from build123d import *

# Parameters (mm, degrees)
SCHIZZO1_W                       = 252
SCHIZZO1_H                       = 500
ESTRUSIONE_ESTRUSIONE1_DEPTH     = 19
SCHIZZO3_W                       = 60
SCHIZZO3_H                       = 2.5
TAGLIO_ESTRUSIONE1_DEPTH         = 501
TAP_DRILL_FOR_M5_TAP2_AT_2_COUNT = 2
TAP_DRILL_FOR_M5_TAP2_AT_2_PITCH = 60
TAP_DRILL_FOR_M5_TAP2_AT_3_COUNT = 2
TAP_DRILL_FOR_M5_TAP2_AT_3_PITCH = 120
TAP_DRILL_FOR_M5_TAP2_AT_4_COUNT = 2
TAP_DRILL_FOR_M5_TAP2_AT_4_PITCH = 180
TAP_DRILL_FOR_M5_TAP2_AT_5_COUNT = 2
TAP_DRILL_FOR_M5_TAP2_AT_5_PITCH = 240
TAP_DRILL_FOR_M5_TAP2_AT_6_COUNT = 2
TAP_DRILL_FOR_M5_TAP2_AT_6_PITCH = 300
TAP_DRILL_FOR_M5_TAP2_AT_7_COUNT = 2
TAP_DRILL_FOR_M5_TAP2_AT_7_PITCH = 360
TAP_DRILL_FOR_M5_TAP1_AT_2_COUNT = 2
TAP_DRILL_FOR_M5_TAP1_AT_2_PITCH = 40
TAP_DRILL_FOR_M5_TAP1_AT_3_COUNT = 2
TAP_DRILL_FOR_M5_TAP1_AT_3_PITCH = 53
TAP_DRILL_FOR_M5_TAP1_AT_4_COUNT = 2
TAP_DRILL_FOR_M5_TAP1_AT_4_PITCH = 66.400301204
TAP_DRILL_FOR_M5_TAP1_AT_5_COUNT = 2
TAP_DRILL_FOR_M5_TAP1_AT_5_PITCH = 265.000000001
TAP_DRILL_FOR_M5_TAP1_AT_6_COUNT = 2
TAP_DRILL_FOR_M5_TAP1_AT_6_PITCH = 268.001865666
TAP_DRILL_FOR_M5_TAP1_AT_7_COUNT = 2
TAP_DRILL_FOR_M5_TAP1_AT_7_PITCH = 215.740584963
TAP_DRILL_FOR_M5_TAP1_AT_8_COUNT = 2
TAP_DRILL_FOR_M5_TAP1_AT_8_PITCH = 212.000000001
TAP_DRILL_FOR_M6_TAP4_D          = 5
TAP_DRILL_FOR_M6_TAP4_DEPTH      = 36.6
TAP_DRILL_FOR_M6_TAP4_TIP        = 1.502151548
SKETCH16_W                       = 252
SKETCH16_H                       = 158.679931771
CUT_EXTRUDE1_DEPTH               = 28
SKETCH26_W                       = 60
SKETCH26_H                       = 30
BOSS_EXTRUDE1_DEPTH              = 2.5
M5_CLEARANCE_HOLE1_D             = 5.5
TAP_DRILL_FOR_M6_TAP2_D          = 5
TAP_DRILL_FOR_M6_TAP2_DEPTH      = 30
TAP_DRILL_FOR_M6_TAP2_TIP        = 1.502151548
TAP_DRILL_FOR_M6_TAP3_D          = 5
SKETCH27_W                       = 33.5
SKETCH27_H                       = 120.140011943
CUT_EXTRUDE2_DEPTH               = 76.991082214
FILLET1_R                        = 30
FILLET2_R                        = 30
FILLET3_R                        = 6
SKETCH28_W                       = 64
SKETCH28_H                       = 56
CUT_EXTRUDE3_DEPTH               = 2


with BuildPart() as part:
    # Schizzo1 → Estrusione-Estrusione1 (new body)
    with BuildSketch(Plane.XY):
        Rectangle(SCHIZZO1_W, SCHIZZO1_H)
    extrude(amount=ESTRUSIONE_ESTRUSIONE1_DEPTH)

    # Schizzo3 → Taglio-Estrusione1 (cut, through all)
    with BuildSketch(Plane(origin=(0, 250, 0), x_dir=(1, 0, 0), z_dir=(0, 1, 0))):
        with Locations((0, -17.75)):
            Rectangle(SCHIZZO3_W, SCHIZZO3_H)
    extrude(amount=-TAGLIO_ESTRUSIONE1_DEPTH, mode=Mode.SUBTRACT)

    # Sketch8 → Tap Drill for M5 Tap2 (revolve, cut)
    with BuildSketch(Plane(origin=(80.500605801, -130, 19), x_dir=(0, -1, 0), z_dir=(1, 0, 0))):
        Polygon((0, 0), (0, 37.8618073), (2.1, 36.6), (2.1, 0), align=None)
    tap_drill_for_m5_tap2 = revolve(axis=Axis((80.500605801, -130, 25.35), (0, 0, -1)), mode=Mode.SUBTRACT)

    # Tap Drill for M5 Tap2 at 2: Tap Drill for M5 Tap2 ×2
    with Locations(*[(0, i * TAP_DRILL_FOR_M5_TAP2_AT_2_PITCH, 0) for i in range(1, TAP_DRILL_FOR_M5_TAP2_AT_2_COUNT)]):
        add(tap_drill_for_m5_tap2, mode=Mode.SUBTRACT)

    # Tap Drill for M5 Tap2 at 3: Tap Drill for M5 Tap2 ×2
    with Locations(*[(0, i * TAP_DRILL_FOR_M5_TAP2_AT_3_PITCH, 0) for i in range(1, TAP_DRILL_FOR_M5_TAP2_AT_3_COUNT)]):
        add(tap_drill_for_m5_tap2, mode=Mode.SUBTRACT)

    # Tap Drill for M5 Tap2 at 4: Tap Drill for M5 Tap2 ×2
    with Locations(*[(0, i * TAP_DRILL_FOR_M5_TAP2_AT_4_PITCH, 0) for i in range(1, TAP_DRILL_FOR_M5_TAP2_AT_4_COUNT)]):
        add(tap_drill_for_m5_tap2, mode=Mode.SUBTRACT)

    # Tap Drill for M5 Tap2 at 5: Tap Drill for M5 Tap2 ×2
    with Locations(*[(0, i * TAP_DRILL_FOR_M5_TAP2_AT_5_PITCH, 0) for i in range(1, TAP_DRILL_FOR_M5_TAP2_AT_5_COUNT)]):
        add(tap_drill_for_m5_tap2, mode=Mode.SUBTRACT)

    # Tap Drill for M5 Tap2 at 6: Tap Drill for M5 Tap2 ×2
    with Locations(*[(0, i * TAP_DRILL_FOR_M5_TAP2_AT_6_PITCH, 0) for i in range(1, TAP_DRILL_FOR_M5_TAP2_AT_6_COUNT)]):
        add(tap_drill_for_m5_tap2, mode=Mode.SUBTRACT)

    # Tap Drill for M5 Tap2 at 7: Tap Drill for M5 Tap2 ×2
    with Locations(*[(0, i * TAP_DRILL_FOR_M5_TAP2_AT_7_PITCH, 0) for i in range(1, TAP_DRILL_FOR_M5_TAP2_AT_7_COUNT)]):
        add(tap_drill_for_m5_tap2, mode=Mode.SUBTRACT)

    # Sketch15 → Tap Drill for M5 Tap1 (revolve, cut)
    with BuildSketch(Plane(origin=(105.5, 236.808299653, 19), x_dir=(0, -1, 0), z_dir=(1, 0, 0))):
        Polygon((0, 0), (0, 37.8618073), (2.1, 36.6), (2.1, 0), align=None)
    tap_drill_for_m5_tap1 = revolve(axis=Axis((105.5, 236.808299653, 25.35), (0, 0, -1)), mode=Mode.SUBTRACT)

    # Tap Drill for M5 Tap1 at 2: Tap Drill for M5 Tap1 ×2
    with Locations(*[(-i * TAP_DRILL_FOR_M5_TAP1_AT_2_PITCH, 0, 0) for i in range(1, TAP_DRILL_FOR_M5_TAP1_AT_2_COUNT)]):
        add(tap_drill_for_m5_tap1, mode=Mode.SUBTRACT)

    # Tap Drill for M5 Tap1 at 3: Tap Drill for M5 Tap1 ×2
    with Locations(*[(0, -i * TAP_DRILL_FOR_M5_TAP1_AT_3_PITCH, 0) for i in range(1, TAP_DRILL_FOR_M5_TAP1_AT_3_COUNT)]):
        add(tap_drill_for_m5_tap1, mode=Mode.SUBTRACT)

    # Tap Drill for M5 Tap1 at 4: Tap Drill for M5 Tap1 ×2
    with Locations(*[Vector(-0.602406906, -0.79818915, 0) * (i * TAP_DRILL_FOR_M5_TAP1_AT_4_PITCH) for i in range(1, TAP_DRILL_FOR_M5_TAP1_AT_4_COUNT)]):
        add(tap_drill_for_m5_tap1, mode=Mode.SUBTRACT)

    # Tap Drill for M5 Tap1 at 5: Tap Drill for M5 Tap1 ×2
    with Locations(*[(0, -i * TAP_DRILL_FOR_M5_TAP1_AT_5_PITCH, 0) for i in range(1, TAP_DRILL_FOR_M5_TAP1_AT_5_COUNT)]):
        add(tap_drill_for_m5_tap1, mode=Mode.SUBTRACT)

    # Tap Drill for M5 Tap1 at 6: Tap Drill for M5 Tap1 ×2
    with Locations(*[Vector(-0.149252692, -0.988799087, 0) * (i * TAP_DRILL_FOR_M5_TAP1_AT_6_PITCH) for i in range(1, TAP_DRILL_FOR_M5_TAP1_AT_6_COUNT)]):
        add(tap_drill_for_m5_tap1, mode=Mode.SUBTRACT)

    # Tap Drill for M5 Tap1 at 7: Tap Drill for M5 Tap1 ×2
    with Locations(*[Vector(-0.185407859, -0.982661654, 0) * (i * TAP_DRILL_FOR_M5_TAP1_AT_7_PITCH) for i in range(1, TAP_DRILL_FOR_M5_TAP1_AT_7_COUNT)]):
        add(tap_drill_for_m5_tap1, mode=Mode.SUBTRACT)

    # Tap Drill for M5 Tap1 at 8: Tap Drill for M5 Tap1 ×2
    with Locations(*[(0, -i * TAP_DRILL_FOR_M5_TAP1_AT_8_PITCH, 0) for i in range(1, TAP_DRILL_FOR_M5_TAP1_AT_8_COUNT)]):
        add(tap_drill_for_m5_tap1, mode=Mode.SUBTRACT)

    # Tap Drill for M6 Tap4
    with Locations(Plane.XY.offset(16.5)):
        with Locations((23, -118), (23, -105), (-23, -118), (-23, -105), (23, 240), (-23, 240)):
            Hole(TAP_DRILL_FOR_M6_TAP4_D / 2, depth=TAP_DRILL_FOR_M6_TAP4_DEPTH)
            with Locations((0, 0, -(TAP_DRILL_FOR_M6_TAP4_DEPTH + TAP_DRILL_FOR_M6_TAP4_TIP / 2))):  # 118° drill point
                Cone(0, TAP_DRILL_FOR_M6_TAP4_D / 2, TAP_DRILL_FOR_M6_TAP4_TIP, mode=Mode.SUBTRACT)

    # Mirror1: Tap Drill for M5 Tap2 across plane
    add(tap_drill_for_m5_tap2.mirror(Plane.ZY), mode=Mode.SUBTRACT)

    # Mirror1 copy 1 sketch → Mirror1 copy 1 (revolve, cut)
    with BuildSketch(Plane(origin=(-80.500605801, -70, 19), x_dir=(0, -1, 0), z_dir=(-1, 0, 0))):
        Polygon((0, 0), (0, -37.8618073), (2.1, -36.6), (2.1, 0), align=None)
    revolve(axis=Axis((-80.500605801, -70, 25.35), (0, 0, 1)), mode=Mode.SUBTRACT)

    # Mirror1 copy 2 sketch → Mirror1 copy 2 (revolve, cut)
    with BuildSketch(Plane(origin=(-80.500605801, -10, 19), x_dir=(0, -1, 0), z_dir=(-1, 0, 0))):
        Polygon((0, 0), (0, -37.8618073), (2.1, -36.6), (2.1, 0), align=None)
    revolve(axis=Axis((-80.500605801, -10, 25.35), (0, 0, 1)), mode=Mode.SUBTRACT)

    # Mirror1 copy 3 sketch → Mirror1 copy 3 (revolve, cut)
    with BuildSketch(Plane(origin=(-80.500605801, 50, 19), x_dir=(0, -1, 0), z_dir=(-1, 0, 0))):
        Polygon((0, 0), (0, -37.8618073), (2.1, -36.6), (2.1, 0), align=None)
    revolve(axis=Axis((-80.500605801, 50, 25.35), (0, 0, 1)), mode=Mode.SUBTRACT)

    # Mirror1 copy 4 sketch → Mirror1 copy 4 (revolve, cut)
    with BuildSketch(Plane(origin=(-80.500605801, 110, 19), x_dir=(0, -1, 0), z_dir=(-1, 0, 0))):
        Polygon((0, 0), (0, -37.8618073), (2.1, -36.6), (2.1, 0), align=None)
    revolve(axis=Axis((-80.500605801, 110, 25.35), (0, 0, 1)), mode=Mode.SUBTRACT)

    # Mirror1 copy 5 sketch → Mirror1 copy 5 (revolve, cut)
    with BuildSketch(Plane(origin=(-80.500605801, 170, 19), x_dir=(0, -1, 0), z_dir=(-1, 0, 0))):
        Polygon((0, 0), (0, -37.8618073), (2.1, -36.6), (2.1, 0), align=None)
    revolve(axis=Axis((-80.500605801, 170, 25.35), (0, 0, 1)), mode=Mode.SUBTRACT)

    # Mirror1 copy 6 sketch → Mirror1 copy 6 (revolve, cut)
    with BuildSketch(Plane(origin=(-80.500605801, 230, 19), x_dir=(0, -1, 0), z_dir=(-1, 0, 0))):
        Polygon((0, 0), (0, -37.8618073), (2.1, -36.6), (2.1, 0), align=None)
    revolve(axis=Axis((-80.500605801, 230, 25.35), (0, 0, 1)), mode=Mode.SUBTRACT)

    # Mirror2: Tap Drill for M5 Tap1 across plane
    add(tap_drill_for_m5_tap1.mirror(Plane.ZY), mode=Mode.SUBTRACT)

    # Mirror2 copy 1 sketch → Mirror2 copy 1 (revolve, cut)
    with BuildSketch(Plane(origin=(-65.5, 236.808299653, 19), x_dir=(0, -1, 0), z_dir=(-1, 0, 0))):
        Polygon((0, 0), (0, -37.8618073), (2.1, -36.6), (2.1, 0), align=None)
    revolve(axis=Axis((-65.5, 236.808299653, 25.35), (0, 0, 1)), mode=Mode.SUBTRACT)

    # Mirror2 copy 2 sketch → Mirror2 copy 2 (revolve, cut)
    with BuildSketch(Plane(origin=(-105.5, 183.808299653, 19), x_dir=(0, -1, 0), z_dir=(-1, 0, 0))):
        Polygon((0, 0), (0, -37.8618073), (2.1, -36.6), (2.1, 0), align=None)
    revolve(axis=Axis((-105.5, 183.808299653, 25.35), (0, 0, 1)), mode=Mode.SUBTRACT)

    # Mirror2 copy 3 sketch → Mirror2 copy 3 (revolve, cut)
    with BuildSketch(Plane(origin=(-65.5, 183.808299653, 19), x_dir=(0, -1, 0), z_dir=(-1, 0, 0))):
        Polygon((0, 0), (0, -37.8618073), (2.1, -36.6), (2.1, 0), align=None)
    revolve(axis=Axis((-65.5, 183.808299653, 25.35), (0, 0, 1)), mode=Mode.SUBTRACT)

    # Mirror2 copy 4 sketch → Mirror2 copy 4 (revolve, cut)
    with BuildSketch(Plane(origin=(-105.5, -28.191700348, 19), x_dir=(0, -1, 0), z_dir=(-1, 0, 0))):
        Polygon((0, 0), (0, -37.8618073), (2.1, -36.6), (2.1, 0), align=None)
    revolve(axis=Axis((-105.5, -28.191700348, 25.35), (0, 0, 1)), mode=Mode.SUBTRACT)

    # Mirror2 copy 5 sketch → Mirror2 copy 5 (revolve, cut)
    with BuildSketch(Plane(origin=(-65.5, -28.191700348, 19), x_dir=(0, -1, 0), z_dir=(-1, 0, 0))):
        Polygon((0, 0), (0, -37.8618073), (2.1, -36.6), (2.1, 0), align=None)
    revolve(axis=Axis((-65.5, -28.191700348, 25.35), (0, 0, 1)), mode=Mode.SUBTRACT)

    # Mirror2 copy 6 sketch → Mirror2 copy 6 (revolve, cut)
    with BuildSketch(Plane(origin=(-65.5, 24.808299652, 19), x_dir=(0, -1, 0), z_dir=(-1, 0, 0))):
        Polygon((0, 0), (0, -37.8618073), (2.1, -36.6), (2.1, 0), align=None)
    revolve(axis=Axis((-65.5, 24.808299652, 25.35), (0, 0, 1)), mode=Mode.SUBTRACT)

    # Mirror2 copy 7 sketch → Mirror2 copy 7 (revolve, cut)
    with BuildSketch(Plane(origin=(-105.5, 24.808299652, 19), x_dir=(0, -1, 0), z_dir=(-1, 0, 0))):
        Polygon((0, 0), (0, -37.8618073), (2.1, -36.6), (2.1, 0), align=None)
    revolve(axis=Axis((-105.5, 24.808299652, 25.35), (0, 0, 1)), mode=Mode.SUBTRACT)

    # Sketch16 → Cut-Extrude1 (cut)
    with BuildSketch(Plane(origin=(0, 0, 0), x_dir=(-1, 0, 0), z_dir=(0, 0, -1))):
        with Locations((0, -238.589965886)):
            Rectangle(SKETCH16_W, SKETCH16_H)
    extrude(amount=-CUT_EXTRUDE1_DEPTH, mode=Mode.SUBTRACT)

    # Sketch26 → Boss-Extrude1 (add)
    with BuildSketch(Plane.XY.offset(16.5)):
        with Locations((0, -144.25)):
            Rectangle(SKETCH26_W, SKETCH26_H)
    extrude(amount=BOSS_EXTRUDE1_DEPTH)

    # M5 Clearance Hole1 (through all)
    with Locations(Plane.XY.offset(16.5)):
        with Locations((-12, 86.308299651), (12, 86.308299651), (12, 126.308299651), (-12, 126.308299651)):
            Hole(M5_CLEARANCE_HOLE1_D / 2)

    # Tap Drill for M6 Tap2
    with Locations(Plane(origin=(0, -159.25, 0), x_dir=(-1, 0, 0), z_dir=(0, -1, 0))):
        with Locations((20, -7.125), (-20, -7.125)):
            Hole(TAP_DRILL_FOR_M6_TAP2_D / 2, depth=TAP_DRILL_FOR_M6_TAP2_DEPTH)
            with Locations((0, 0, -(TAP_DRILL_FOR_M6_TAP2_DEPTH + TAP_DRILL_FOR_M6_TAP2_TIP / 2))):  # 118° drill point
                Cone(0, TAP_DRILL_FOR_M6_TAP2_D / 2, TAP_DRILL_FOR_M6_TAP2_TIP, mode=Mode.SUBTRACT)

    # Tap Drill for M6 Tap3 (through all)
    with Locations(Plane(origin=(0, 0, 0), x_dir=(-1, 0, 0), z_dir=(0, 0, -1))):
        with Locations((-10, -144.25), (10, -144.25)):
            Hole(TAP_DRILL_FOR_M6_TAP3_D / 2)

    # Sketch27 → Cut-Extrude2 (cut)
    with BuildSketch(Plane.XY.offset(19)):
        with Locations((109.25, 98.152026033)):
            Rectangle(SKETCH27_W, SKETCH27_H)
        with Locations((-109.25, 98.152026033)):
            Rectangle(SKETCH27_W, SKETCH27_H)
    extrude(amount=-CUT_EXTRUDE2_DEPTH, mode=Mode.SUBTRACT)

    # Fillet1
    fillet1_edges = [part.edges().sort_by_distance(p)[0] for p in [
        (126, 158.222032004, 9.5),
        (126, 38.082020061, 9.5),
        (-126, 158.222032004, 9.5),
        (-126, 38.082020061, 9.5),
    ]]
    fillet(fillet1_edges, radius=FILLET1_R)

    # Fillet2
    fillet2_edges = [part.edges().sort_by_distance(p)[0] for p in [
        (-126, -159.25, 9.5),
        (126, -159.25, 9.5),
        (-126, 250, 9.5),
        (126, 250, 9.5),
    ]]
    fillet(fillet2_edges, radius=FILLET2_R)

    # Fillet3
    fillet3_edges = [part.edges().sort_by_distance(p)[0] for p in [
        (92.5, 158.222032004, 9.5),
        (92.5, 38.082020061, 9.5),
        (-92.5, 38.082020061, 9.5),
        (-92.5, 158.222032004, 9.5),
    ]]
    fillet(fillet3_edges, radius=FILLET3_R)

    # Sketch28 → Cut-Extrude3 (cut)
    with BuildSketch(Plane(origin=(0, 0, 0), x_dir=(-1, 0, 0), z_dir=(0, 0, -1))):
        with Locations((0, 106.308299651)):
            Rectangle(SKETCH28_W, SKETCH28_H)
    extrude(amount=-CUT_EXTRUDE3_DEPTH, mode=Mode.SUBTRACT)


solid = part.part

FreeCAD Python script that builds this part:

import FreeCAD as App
import Part
import Sketcher

V = App.Vector
Q = App.Units.Quantity


def edges_at(feature, points):
    """Names of the edges that pass closest to the given points."""
    edges = feature.Shape.Edges
    near = lambda p: min(range(len(edges)), key=lambda i: edges[i].distToShape(Part.Vertex(*p))[0])
    return sorted({f"Edge{near(p) + 1}" for p in points})


def add_polygon(sketch, points):
    """Adds a closed chain of lines whose ends are joined by coincident constraints."""
    first, n = sketch.GeometryCount, len(points)
    for a, b in zip(points, points[1:] + points[:1]):
        sketch.addGeometry(Part.LineSegment(App.Vector(*a, 0), App.Vector(*b, 0)), False)
    for i in range(n):
        sketch.addConstraint(Sketcher.Constraint("Coincident", first + i, 2, first + (i + 1) % n, 1))

doc = App.newDocument("Part")
body = doc.addObject("PartDesign::Body", "Body")

# Sketch on XY plane
sketch1 = body.newObject("Sketcher::SketchObject", "Sketch")
sketch1.AttachmentSupport = (doc.getObject("XY_Plane"), [""])
sketch1.MapMode = "FlatFace"
add_polygon(sketch1, [(-126, 250), (-126, -250), (126, -250), (126, 250)])  # lines 0-3
sketch1.addConstraint(Sketcher.Constraint("Vertical", 0))
sketch1.addConstraint(Sketcher.Constraint("Horizontal", 1))
sketch1.addConstraint(Sketcher.Constraint("Vertical", 2))
sketch1.addConstraint(Sketcher.Constraint("Horizontal", 3))
sketch1.addConstraint(Sketcher.Constraint("Symmetric", 0, 2, 2, 2, -1, 1))
sketch1.addConstraint(Sketcher.Constraint("DistanceX", 1, 1, 1, 2, Q("252 mm")))
sketch1.addConstraint(Sketcher.Constraint("DistanceY", 0, 2, 0, 1, Q("500 mm")))
pad1 = body.newObject("PartDesign::Pad", "Pad")
pad1.Profile = sketch1
pad1.Length = 19

# Sketch on XZ plane
sketch2 = body.newObject("Sketcher::SketchObject", "Sketch001")
sketch2.AttachmentSupport = (doc.getObject("XZ_Plane"), [""])
sketch2.MapMode = "FlatFace"
sketch2.AttachmentOffset = App.Placement(V(0, 0, -250), App.Rotation())
add_polygon(sketch2, [(-30, 16.5), (-30, 19), (30, 19), (30, 16.5)])  # lines 0-3
sketch2.addConstraint(Sketcher.Constraint("Vertical", 0))
sketch2.addConstraint(Sketcher.Constraint("Horizontal", 1))
sketch2.addConstraint(Sketcher.Constraint("Vertical", 2))
sketch2.addConstraint(Sketcher.Constraint("Horizontal", 3))
sketch2.addConstraint(Sketcher.Constraint("DistanceX", 1, 1, 1, 2, Q("60 mm")))
sketch2.addConstraint(Sketcher.Constraint("DistanceY", 0, 1, 0, 2, Q("2.5 mm")))
sketch2.addConstraint(Sketcher.Constraint("DistanceX", 0, 2, -1, 1, Q("30 mm")))
sketch2.addConstraint(Sketcher.Constraint("DistanceY", -1, 1, 0, 2, Q("19 mm")))
pocket1 = body.newObject("PartDesign::Pocket", "Pocket")
pocket1.Profile = sketch2
pocket1.Type = "ThroughAll"
pocket1.Reversed = True

# Sketch on YZ plane
sketch3 = body.newObject("Sketcher::SketchObject", "Sketch002")
sketch3.AttachmentSupport = (doc.getObject("YZ_Plane"), [""])
sketch3.MapMode = "FlatFace"
sketch3.AttachmentOffset = App.Placement(V(0, 0, 80.500606), App.Rotation())
add_polygon(sketch3, [(-130, -18.9), (-130, 19), (-132.1, 19), (-132.1, -17.6)])  # lines 0-3
sketch3.addGeometry(Part.LineSegment(V(-130, 19, 0), V(-130, -18.9, 0)), True)  # axis
sketch3.addConstraint(Sketcher.Constraint("Vertical", 0))
sketch3.addConstraint(Sketcher.Constraint("Horizontal", 1))
sketch3.addConstraint(Sketcher.Constraint("Vertical", 2))
sketch3.addConstraint(Sketcher.Constraint("Vertical", 4))
sketch3.addConstraint(Sketcher.Constraint("Coincident", 4, 1, 0, 2))
sketch3.addConstraint(Sketcher.Constraint("Equal", 0, 4))
sketch3.addConstraint(Sketcher.Constraint("Angle", 3, Q("-31 deg")))
sketch3.addConstraint(Sketcher.Constraint("DistanceX", 1, 2, 1, 1, Q("2.1 mm")))
sketch3.addConstraint(Sketcher.Constraint("DistanceY", 2, 2, 2, 1, Q("36.6 mm")))
sketch3.addConstraint(Sketcher.Constraint("DistanceX", 0, 2, -1, 1, Q("130 mm")))
sketch3.addConstraint(Sketcher.Constraint("DistanceY", -1, 1, 0, 2, Q("19 mm")))
groove = body.newObject("PartDesign::Groove", "Groove")
groove.Profile = sketch3
groove.ReferenceAxis = (sketch3, ["Axis0"])
groove.Angle = 360
doc.recompute()

linearpattern = body.newObject("PartDesign::LinearPattern", "LinearPattern")
linearpattern.Originals = [groove]
linearpattern.Direction = (doc.getObject("Y_Axis"), [""])
linearpattern.Mode = "offset"
linearpattern.Offset = 60
linearpattern.Occurrences = 2
body.Tip = linearpattern
doc.recompute()

linearpattern2 = body.newObject("PartDesign::LinearPattern", "LinearPattern001")
linearpattern2.Originals = [groove]
linearpattern2.Direction = (doc.getObject("Y_Axis"), [""])
linearpattern2.Mode = "offset"
linearpattern2.Offset = 120
linearpattern2.Occurrences = 2
body.Tip = linearpattern2
doc.recompute()

linearpattern3 = body.newObject("PartDesign::LinearPattern", "LinearPattern002")
linearpattern3.Originals = [groove]
linearpattern3.Direction = (doc.getObject("Y_Axis"), [""])
linearpattern3.Mode = "offset"
linearpattern3.Offset = 180
linearpattern3.Occurrences = 2
body.Tip = linearpattern3
doc.recompute()

linearpattern4 = body.newObject("PartDesign::LinearPattern", "LinearPattern003")
linearpattern4.Originals = [groove]
linearpattern4.Direction = (doc.getObject("Y_Axis"), [""])
linearpattern4.Mode = "offset"
linearpattern4.Offset = 240
linearpattern4.Occurrences = 2
body.Tip = linearpattern4
doc.recompute()

linearpattern5 = body.newObject("PartDesign::LinearPattern", "LinearPattern004")
linearpattern5.Originals = [groove]
linearpattern5.Direction = (doc.getObject("Y_Axis"), [""])
linearpattern5.Mode = "offset"
linearpattern5.Offset = 300
linearpattern5.Occurrences = 2
body.Tip = linearpattern5
doc.recompute()

linearpattern6 = body.newObject("PartDesign::LinearPattern", "LinearPattern005")
linearpattern6.Originals = [groove]
linearpattern6.Direction = (doc.getObject("Y_Axis"), [""])
linearpattern6.Mode = "offset"
linearpattern6.Offset = 360
linearpattern6.Occurrences = 2
body.Tip = linearpattern6

# Sketch on YZ plane
sketch4 = body.newObject("Sketcher::SketchObject", "Sketch003")
sketch4.AttachmentSupport = (doc.getObject("YZ_Plane"), [""])
sketch4.MapMode = "FlatFace"
sketch4.AttachmentOffset = App.Placement(V(0, 0, 105.5), App.Rotation())
add_polygon(sketch4, [(236.8, -18.9), (236.8, 19), (234.7, 19), (234.7, -17.6)])  # lines 0-3
sketch4.addGeometry(Part.LineSegment(V(236.8, 19, 0), V(236.8, -18.9, 0)), True)  # axis
sketch4.addConstraint(Sketcher.Constraint("Vertical", 0))
sketch4.addConstraint(Sketcher.Constraint("Horizontal", 1))
sketch4.addConstraint(Sketcher.Constraint("Vertical", 2))
sketch4.addConstraint(Sketcher.Constraint("Vertical", 4))
sketch4.addConstraint(Sketcher.Constraint("Coincident", 4, 1, 0, 2))
sketch4.addConstraint(Sketcher.Constraint("Equal", 0, 4))
sketch4.addConstraint(Sketcher.Constraint("Angle", 3, Q("-31 deg")))
sketch4.addConstraint(Sketcher.Constraint("DistanceX", 1, 2, 1, 1, Q("2.1 mm")))
sketch4.addConstraint(Sketcher.Constraint("DistanceY", 2, 2, 2, 1, Q("36.6 mm")))
sketch4.addConstraint(Sketcher.Constraint("DistanceY", -1, 1, 0, 2, Q("19 mm")))
sketch4.addConstraint(Sketcher.Constraint("DistanceX", -1, 1, 0, 2, Q("236.8083 mm")))
groove2 = body.newObject("PartDesign::Groove", "Groove001")
groove2.Profile = sketch4
groove2.ReferenceAxis = (sketch4, ["Axis0"])
groove2.Angle = 360
doc.recompute()

linearpattern7 = body.newObject("PartDesign::LinearPattern", "LinearPattern006")
linearpattern7.Originals = [groove2]
linearpattern7.Direction = (doc.getObject("X_Axis"), [""])
linearpattern7.Mode = "offset"
linearpattern7.Offset = 40
linearpattern7.Occurrences = 2
linearpattern7.Reversed = True
body.Tip = linearpattern7
doc.recompute()

linearpattern8 = body.newObject("PartDesign::LinearPattern", "LinearPattern007")
linearpattern8.Originals = [groove2]
linearpattern8.Direction = (doc.getObject("Y_Axis"), [""])
linearpattern8.Mode = "offset"
linearpattern8.Offset = 53
linearpattern8.Occurrences = 2
linearpattern8.Reversed = True
body.Tip = linearpattern8
doc.recompute()

datumline = body.newObject("PartDesign::Line", "DatumLine")
datumline.Placement = App.Placement(V(0, 0, 0), App.Rotation(V(0, 0, 1), V(-0.602406906, -0.79818915, 0)))
linearpattern9 = body.newObject("PartDesign::LinearPattern", "LinearPattern008")
linearpattern9.Originals = [groove2]
linearpattern9.Direction = (datumline, [""])
linearpattern9.Mode = "offset"
linearpattern9.Offset = 66.400301
linearpattern9.Occurrences = 2
body.Tip = linearpattern9
doc.recompute()

linearpattern10 = body.newObject("PartDesign::LinearPattern", "LinearPattern009")
linearpattern10.Originals = [groove2]
linearpattern10.Direction = (doc.getObject("Y_Axis"), [""])
linearpattern10.Mode = "offset"
linearpattern10.Offset = 265
linearpattern10.Occurrences = 2
linearpattern10.Reversed = True
body.Tip = linearpattern10
doc.recompute()

datumline2 = body.newObject("PartDesign::Line", "DatumLine001")
datumline2.Placement = App.Placement(V(0, 0, 0), App.Rotation(V(0, 0, 1), V(-0.149252692, -0.988799087, 0)))
linearpattern11 = body.newObject("PartDesign::LinearPattern", "LinearPattern010")
linearpattern11.Originals = [groove2]
linearpattern11.Direction = (datumline2, [""])
linearpattern11.Mode = "offset"
linearpattern11.Offset = 268.001866
linearpattern11.Occurrences = 2
body.Tip = linearpattern11
doc.recompute()

datumline3 = body.newObject("PartDesign::Line", "DatumLine002")
datumline3.Placement = App.Placement(V(0, 0, 0), App.Rotation(V(0, 0, 1), V(-0.185407859, -0.982661654, 0)))
linearpattern12 = body.newObject("PartDesign::LinearPattern", "LinearPattern011")
linearpattern12.Originals = [groove2]
linearpattern12.Direction = (datumline3, [""])
linearpattern12.Mode = "offset"
linearpattern12.Offset = 215.740585
linearpattern12.Occurrences = 2
body.Tip = linearpattern12
doc.recompute()

linearpattern13 = body.newObject("PartDesign::LinearPattern", "LinearPattern012")
linearpattern13.Originals = [groove2]
linearpattern13.Direction = (doc.getObject("Y_Axis"), [""])
linearpattern13.Mode = "offset"
linearpattern13.Offset = 212
linearpattern13.Occurrences = 2
linearpattern13.Reversed = True
body.Tip = linearpattern13

# Sketch on XY plane
sketch5 = body.newObject("Sketcher::SketchObject", "Sketch004")
sketch5.AttachmentSupport = (doc.getObject("XY_Plane"), [""])
sketch5.MapMode = "FlatFace"
sketch5.AttachmentOffset = App.Placement(V(0, 0, 16.5), App.Rotation())
sketch5.addGeometry(Part.Circle(V(23, -118, 0), V(0, 0, 1), 2.5), False)
sketch5.addGeometry(Part.Circle(V(23, -105, 0), V(0, 0, 1), 2.5), False)
sketch5.addGeometry(Part.Circle(V(-23, -118, 0), V(0, 0, 1), 2.5), False)
sketch5.addGeometry(Part.Circle(V(-23, -105, 0), V(0, 0, 1), 2.5), False)
sketch5.addGeometry(Part.Circle(V(23, 240, 0), V(0, 0, 1), 2.5), False)
sketch5.addGeometry(Part.Circle(V(-23, 240, 0), V(0, 0, 1), 2.5), False)
sketch5.addConstraint(Sketcher.Constraint("Equal", 0, 1))
sketch5.addConstraint(Sketcher.Constraint("Equal", 1, 2))
sketch5.addConstraint(Sketcher.Constraint("Equal", 2, 3))
sketch5.addConstraint(Sketcher.Constraint("Equal", 3, 4))
sketch5.addConstraint(Sketcher.Constraint("Equal", 4, 5))
sketch5.addConstraint(Sketcher.Constraint("Symmetric", 0, 3, 2, 3, -2))
sketch5.addConstraint(Sketcher.Constraint("Symmetric", 1, 3, 3, 3, -2))
sketch5.addConstraint(Sketcher.Constraint("Symmetric", 4, 3, 5, 3, -2))
sketch5.addConstraint(Sketcher.Constraint("Vertical", 0, 3, 1, 3))
sketch5.addConstraint(Sketcher.Constraint("Vertical", 1, 3, 4, 3))
sketch5.addConstraint(Sketcher.Constraint("Diameter", 0, Q("5 mm")))
sketch5.addConstraint(Sketcher.Constraint("DistanceX", -1, 1, 0, 3, Q("23 mm")))
sketch5.addConstraint(Sketcher.Constraint("DistanceY", 0, 3, -1, 1, Q("118 mm")))
sketch5.addConstraint(Sketcher.Constraint("DistanceY", 1, 3, -1, 1, Q("105 mm")))
sketch5.addConstraint(Sketcher.Constraint("DistanceY", -1, 1, 4, 3, Q("240 mm")))
doc.recompute()
hole = body.newObject("PartDesign::Hole", "Hole")
hole.Profile = sketch5
hole.ThreadType = "None"
hole.Diameter = 5
hole.DepthType = "Dimension"
hole.Depth = 36.6
hole.DrillPoint = "Angled"
hole.DrillPointAngle = 118
doc.recompute()

mirrored = body.newObject("PartDesign::Mirrored", "Mirrored")
mirrored.Originals = [groove]
mirrored.MirrorPlane = (doc.getObject("YZ_Plane"), [""])
body.Tip = mirrored

# Sketch on YZ plane
sketch6 = body.newObject("Sketcher::SketchObject", "Sketch005")
sketch6.AttachmentSupport = (doc.getObject("YZ_Plane"), [""])
sketch6.MapMode = "FlatFace"
sketch6.AttachmentOffset = App.Placement(V(0, 0, -80.500606), App.Rotation())
add_polygon(sketch6, [(-70, 19), (-70, -18.9), (-72.1, -17.6), (-72.1, 19)])  # lines 0-3
sketch6.addGeometry(Part.LineSegment(V(-70, -18.9, 0), V(-70, 19, 0)), True)  # axis
sketch6.addConstraint(Sketcher.Constraint("Vertical", 0))
sketch6.addConstraint(Sketcher.Constraint("Vertical", 2))
sketch6.addConstraint(Sketcher.Constraint("Horizontal", 3))
sketch6.addConstraint(Sketcher.Constraint("Vertical", 4))
sketch6.addConstraint(Sketcher.Constraint("Coincident", 4, 1, 0, 2))
sketch6.addConstraint(Sketcher.Constraint("Horizontal", 2, 2, 4, 2))
sketch6.addConstraint(Sketcher.Constraint("Angle", 1, Q("149 deg")))
sketch6.addConstraint(Sketcher.Constraint("DistanceX", 3, 1, 3, 2, Q("2.1 mm")))
sketch6.addConstraint(Sketcher.Constraint("DistanceY", 2, 1, 2, 2, Q("36.6 mm")))
sketch6.addConstraint(Sketcher.Constraint("DistanceX", 0, 2, -1, 1, Q("70 mm")))
sketch6.addConstraint(Sketcher.Constraint("DistanceY", -1, 1, 2, 2, Q("19 mm")))
groove3 = body.newObject("PartDesign::Groove", "Groove002")
groove3.Profile = sketch6
groove3.ReferenceAxis = (sketch6, ["Axis0"])
groove3.Angle = 360

# Sketch on YZ plane
sketch7 = body.newObject("Sketcher::SketchObject", "Sketch006")
sketch7.AttachmentSupport = (doc.getObject("YZ_Plane"), [""])
sketch7.MapMode = "FlatFace"
sketch7.AttachmentOffset = App.Placement(V(0, 0, -80.500606), App.Rotation())
add_polygon(sketch7, [(-10, 19), (-10, -18.9), (-12.1, -17.6), (-12.1, 19)])  # lines 0-3
sketch7.addGeometry(Part.LineSegment(V(-10, -18.9, 0), V(-10, 19, 0)), True)  # axis
sketch7.addConstraint(Sketcher.Constraint("Vertical", 0))
sketch7.addConstraint(Sketcher.Constraint("Vertical", 2))
sketch7.addConstraint(Sketcher.Constraint("Horizontal", 3))
sketch7.addConstraint(Sketcher.Constraint("Vertical", 4))
sketch7.addConstraint(Sketcher.Constraint("Coincident", 4, 1, 0, 2))
sketch7.addConstraint(Sketcher.Constraint("Horizontal", 2, 2, 4, 2))
sketch7.addConstraint(Sketcher.Constraint("Angle", 1, Q("149 deg")))
sketch7.addConstraint(Sketcher.Constraint("DistanceX", 3, 1, 3, 2, Q("2.1 mm")))
sketch7.addConstraint(Sketcher.Constraint("DistanceY", 2, 1, 2, 2, Q("36.6 mm")))
sketch7.addConstraint(Sketcher.Constraint("DistanceX", 0, 2, -1, 1, Q("10 mm")))
sketch7.addConstraint(Sketcher.Constraint("DistanceY", -1, 1, 2, 2, Q("19 mm")))
groove4 = body.newObject("PartDesign::Groove", "Groove003")
groove4.Profile = sketch7
groove4.ReferenceAxis = (sketch7, ["Axis0"])
groove4.Angle = 360

# Sketch on YZ plane
sketch8 = body.newObject("Sketcher::SketchObject", "Sketch007")
sketch8.AttachmentSupport = (doc.getObject("YZ_Plane"), [""])
sketch8.MapMode = "FlatFace"
sketch8.AttachmentOffset = App.Placement(V(0, 0, -80.500606), App.Rotation())
add_polygon(sketch8, [(50, 19), (50, -18.9), (47.9, -17.6), (47.9, 19)])  # lines 0-3
sketch8.addGeometry(Part.LineSegment(V(50, -18.9, 0), V(50, 19, 0)), True)  # axis
sketch8.addConstraint(Sketcher.Constraint("Vertical", 0))
sketch8.addConstraint(Sketcher.Constraint("Vertical", 2))
sketch8.addConstraint(Sketcher.Constraint("Horizontal", 3))
sketch8.addConstraint(Sketcher.Constraint("Vertical", 4))
sketch8.addConstraint(Sketcher.Constraint("Coincident", 4, 1, 0, 2))
sketch8.addConstraint(Sketcher.Constraint("Horizontal", 2, 2, 4, 2))
sketch8.addConstraint(Sketcher.Constraint("Angle", 1, Q("149 deg")))
sketch8.addConstraint(Sketcher.Constraint("DistanceX", 3, 1, 3, 2, Q("2.1 mm")))
sketch8.addConstraint(Sketcher.Constraint("DistanceY", 2, 1, 2, 2, Q("36.6 mm")))
sketch8.addConstraint(Sketcher.Constraint("DistanceX", -1, 1, 0, 2, Q("50 mm")))
sketch8.addConstraint(Sketcher.Constraint("DistanceY", -1, 1, 2, 2, Q("19 mm")))
groove5 = body.newObject("PartDesign::Groove", "Groove004")
groove5.Profile = sketch8
groove5.ReferenceAxis = (sketch8, ["Axis0"])
groove5.Angle = 360

# Sketch on YZ plane
sketch9 = body.newObject("Sketcher::SketchObject", "Sketch008")
sketch9.AttachmentSupport = (doc.getObject("YZ_Plane"), [""])
sketch9.MapMode = "FlatFace"
sketch9.AttachmentOffset = App.Placement(V(0, 0, -80.500606), App.Rotation())
add_polygon(sketch9, [(110, 19), (110, -18.9), (107.9, -17.6), (107.9, 19)])  # lines 0-3
sketch9.addGeometry(Part.LineSegment(V(110, -18.9, 0), V(110, 19, 0)), True)  # axis
sketch9.addConstraint(Sketcher.Constraint("Vertical", 0))
sketch9.addConstraint(Sketcher.Constraint("Vertical", 2))
sketch9.addConstraint(Sketcher.Constraint("Horizontal", 3))
sketch9.addConstraint(Sketcher.Constraint("Vertical", 4))
sketch9.addConstraint(Sketcher.Constraint("Coincident", 4, 1, 0, 2))
sketch9.addConstraint(Sketcher.Constraint("Horizontal", 2, 2, 4, 2))
sketch9.addConstraint(Sketcher.Constraint("Angle", 1, Q("149 deg")))
sketch9.addConstraint(Sketcher.Constraint("DistanceX", 3, 1, 3, 2, Q("2.1 mm")))
sketch9.addConstraint(Sketcher.Constraint("DistanceY", 2, 1, 2, 2, Q("36.6 mm")))
sketch9.addConstraint(Sketcher.Constraint("DistanceX", -1, 1, 0, 2, Q("110 mm")))
sketch9.addConstraint(Sketcher.Constraint("DistanceY", -1, 1, 2, 2, Q("19 mm")))
groove6 = body.newObject("PartDesign::Groove", "Groove005")
groove6.Profile = sketch9
groove6.ReferenceAxis = (sketch9, ["Axis0"])
groove6.Angle = 360

# Sketch on YZ plane
sketch10 = body.newObject("Sketcher::SketchObject", "Sketch009")
sketch10.AttachmentSupport = (doc.getObject("YZ_Plane"), [""])
sketch10.MapMode = "FlatFace"
sketch10.AttachmentOffset = App.Placement(V(0, 0, -80.500606), App.Rotation())
add_polygon(sketch10, [(170, 19), (170, -18.9), (167.9, -17.6), (167.9, 19)])  # lines 0-3
sketch10.addGeometry(Part.LineSegment(V(170, -18.9, 0), V(170, 19, 0)), True)  # axis
sketch10.addConstraint(Sketcher.Constraint("Vertical", 0))
sketch10.addConstraint(Sketcher.Constraint("Vertical", 2))
sketch10.addConstraint(Sketcher.Constraint("Horizontal", 3))
sketch10.addConstraint(Sketcher.Constraint("Vertical", 4))
sketch10.addConstraint(Sketcher.Constraint("Coincident", 4, 1, 0, 2))
sketch10.addConstraint(Sketcher.Constraint("Horizontal", 2, 2, 4, 2))
sketch10.addConstraint(Sketcher.Constraint("Angle", 1, Q("149 deg")))
sketch10.addConstraint(Sketcher.Constraint("DistanceX", 3, 1, 3, 2, Q("2.1 mm")))
sketch10.addConstraint(Sketcher.Constraint("DistanceY", 2, 1, 2, 2, Q("36.6 mm")))
sketch10.addConstraint(Sketcher.Constraint("DistanceX", -1, 1, 0, 2, Q("170 mm")))
sketch10.addConstraint(Sketcher.Constraint("DistanceY", -1, 1, 2, 2, Q("19 mm")))
groove7 = body.newObject("PartDesign::Groove", "Groove006")
groove7.Profile = sketch10
groove7.ReferenceAxis = (sketch10, ["Axis0"])
groove7.Angle = 360

# Sketch on YZ plane
sketch11 = body.newObject("Sketcher::SketchObject", "Sketch010")
sketch11.AttachmentSupport = (doc.getObject("YZ_Plane"), [""])
sketch11.MapMode = "FlatFace"
sketch11.AttachmentOffset = App.Placement(V(0, 0, -80.500606), App.Rotation())
add_polygon(sketch11, [(230, 19), (230, -18.9), (227.9, -17.6), (227.9, 19)])  # lines 0-3
sketch11.addGeometry(Part.LineSegment(V(230, -18.9, 0), V(230, 19, 0)), True)  # axis
sketch11.addConstraint(Sketcher.Constraint("Vertical", 0))
sketch11.addConstraint(Sketcher.Constraint("Vertical", 2))
sketch11.addConstraint(Sketcher.Constraint("Horizontal", 3))
sketch11.addConstraint(Sketcher.Constraint("Vertical", 4))
sketch11.addConstraint(Sketcher.Constraint("Coincident", 4, 1, 0, 2))
sketch11.addConstraint(Sketcher.Constraint("Horizontal", 2, 2, 4, 2))
sketch11.addConstraint(Sketcher.Constraint("Angle", 1, Q("149 deg")))
sketch11.addConstraint(Sketcher.Constraint("DistanceX", 3, 1, 3, 2, Q("2.1 mm")))
sketch11.addConstraint(Sketcher.Constraint("DistanceY", 2, 1, 2, 2, Q("36.6 mm")))
sketch11.addConstraint(Sketcher.Constraint("DistanceX", -1, 1, 0, 2, Q("230 mm")))
sketch11.addConstraint(Sketcher.Constraint("DistanceY", -1, 1, 2, 2, Q("19 mm")))
groove8 = body.newObject("PartDesign::Groove", "Groove007")
groove8.Profile = sketch11
groove8.ReferenceAxis = (sketch11, ["Axis0"])
groove8.Angle = 360
doc.recompute()

mirrored2 = body.newObject("PartDesign::Mirrored", "Mirrored001")
mirrored2.Originals = [groove2]
mirrored2.MirrorPlane = (doc.getObject("YZ_Plane"), [""])
body.Tip = mirrored2

# Sketch on YZ plane
sketch12 = body.newObject("Sketcher::SketchObject", "Sketch011")
sketch12.AttachmentSupport = (doc.getObject("YZ_Plane"), [""])
sketch12.MapMode = "FlatFace"
sketch12.AttachmentOffset = App.Placement(V(0, 0, -65.5), App.Rotation())
add_polygon(sketch12, [(236.8, 19), (236.8, -18.9), (234.7, -17.6), (234.7, 19)])  # lines 0-3
sketch12.addGeometry(Part.LineSegment(V(236.8, -18.9, 0), V(236.8, 19, 0)), True)  # axis
sketch12.addConstraint(Sketcher.Constraint("Vertical", 0))
sketch12.addConstraint(Sketcher.Constraint("Vertical", 2))
sketch12.addConstraint(Sketcher.Constraint("Horizontal", 3))
sketch12.addConstraint(Sketcher.Constraint("Vertical", 4))
sketch12.addConstraint(Sketcher.Constraint("Coincident", 4, 1, 0, 2))
sketch12.addConstraint(Sketcher.Constraint("Horizontal", 2, 2, 4, 2))
sketch12.addConstraint(Sketcher.Constraint("Angle", 1, Q("149 deg")))
sketch12.addConstraint(Sketcher.Constraint("DistanceX", 3, 1, 3, 2, Q("2.1 mm")))
sketch12.addConstraint(Sketcher.Constraint("DistanceY", 2, 1, 2, 2, Q("36.6 mm")))
sketch12.addConstraint(Sketcher.Constraint("DistanceY", -1, 1, 2, 2, Q("19 mm")))
sketch12.addConstraint(Sketcher.Constraint("DistanceX", -1, 1, 0, 2, Q("236.8083 mm")))
groove9 = body.newObject("PartDesign::Groove", "Groove008")
groove9.Profile = sketch12
groove9.ReferenceAxis = (sketch12, ["Axis0"])
groove9.Angle = 360

# Sketch on YZ plane
sketch13 = body.newObject("Sketcher::SketchObject", "Sketch012")
sketch13.AttachmentSupport = (doc.getObject("YZ_Plane"), [""])
sketch13.MapMode = "FlatFace"
sketch13.AttachmentOffset = App.Placement(V(0, 0, -105.5), App.Rotation())
add_polygon(sketch13, [(183.8, 19), (183.8, -18.9), (181.7, -17.6), (181.7, 19)])  # lines 0-3
sketch13.addGeometry(Part.LineSegment(V(183.8, -18.9, 0), V(183.8, 19, 0)), True)  # axis
sketch13.addConstraint(Sketcher.Constraint("Vertical", 0))
sketch13.addConstraint(Sketcher.Constraint("Vertical", 2))
sketch13.addConstraint(Sketcher.Constraint("Horizontal", 3))
sketch13.addConstraint(Sketcher.Constraint("Vertical", 4))
sketch13.addConstraint(Sketcher.Constraint("Coincident", 4, 1, 0, 2))
sketch13.addConstraint(Sketcher.Constraint("Horizontal", 2, 2, 4, 2))
sketch13.addConstraint(Sketcher.Constraint("Angle", 1, Q("149 deg")))
sketch13.addConstraint(Sketcher.Constraint("DistanceX", 3, 1, 3, 2, Q("2.1 mm")))
sketch13.addConstraint(Sketcher.Constraint("DistanceY", 2, 1, 2, 2, Q("36.6 mm")))
sketch13.addConstraint(Sketcher.Constraint("DistanceY", -1, 1, 2, 2, Q("19 mm")))
sketch13.addConstraint(Sketcher.Constraint("DistanceX", -1, 1, 0, 2, Q("183.8083 mm")))
groove10 = body.newObject("PartDesign::Groove", "Groove009")
groove10.Profile = sketch13
groove10.ReferenceAxis = (sketch13, ["Axis0"])
groove10.Angle = 360

# Sketch on YZ plane
sketch14 = body.newObject("Sketcher::SketchObject", "Sketch013")
sketch14.AttachmentSupport = (doc.getObject("YZ_Plane"), [""])
sketch14.MapMode = "FlatFace"
sketch14.AttachmentOffset = App.Placement(V(0, 0, -65.5), App.Rotation())
add_polygon(sketch14, [(183.8, 19), (183.8, -18.9), (181.7, -17.6), (181.7, 19)])  # lines 0-3
sketch14.addGeometry(Part.LineSegment(V(183.8, -18.9, 0), V(183.8, 19, 0)), True)  # axis
sketch14.addConstraint(Sketcher.Constraint("Vertical", 0))
sketch14.addConstraint(Sketcher.Constraint("Vertical", 2))
sketch14.addConstraint(Sketcher.Constraint("Horizontal", 3))
sketch14.addConstraint(Sketcher.Constraint("Vertical", 4))
sketch14.addConstraint(Sketcher.Constraint("Coincident", 4, 1, 0, 2))
sketch14.addConstraint(Sketcher.Constraint("Horizontal", 2, 2, 4, 2))
sketch14.addConstraint(Sketcher.Constraint("Angle", 1, Q("149 deg")))
sketch14.addConstraint(Sketcher.Constraint("DistanceX", 3, 1, 3, 2, Q("2.1 mm")))
sketch14.addConstraint(Sketcher.Constraint("DistanceY", 2, 1, 2, 2, Q("36.6 mm")))
sketch14.addConstraint(Sketcher.Constraint("DistanceY", -1, 1, 2, 2, Q("19 mm")))
sketch14.addConstraint(Sketcher.Constraint("DistanceX", -1, 1, 0, 2, Q("183.8083 mm")))
groove11 = body.newObject("PartDesign::Groove", "Groove010")
groove11.Profile = sketch14
groove11.ReferenceAxis = (sketch14, ["Axis0"])
groove11.Angle = 360

# Sketch on YZ plane
sketch15 = body.newObject("Sketcher::SketchObject", "Sketch014")
sketch15.AttachmentSupport = (doc.getObject("YZ_Plane"), [""])
sketch15.MapMode = "FlatFace"
sketch15.AttachmentOffset = App.Placement(V(0, 0, -105.5), App.Rotation())
add_polygon(sketch15, [(-28.2, 19), (-28.2, -18.9), (-30.3, -17.6), (-30.3, 19)])  # lines 0-3
sketch15.addGeometry(Part.LineSegment(V(-28.2, -18.9, 0), V(-28.2, 19, 0)), True)  # axis
sketch15.addConstraint(Sketcher.Constraint("Vertical", 0))
sketch15.addConstraint(Sketcher.Constraint("Vertical", 2))
sketch15.addConstraint(Sketcher.Constraint("Horizontal", 3))
sketch15.addConstraint(Sketcher.Constraint("Vertical", 4))
sketch15.addConstraint(Sketcher.Constraint("Coincident", 4, 1, 0, 2))
sketch15.addConstraint(Sketcher.Constraint("Horizontal", 2, 2, 4, 2))
sketch15.addConstraint(Sketcher.Constraint("Angle", 1, Q("149 deg")))
sketch15.addConstraint(Sketcher.Constraint("DistanceX", 3, 1, 3, 2, Q("2.1 mm")))
sketch15.addConstraint(Sketcher.Constraint("DistanceY", 2, 1, 2, 2, Q("36.6 mm")))
sketch15.addConstraint(Sketcher.Constraint("DistanceY", -1, 1, 2, 2, Q("19 mm")))
sketch15.addConstraint(Sketcher.Constraint("DistanceX", 0, 2, -1, 1, Q("28.1917 mm")))
groove12 = body.newObject("PartDesign::Groove", "Groove011")
groove12.Profile = sketch15
groove12.ReferenceAxis = (sketch15, ["Axis0"])
groove12.Angle = 360

# Sketch on YZ plane
sketch16 = body.newObject("Sketcher::SketchObject", "Sketch015")
sketch16.AttachmentSupport = (doc.getObject("YZ_Plane"), [""])
sketch16.MapMode = "FlatFace"
sketch16.AttachmentOffset = App.Placement(V(0, 0, -65.5), App.Rotation())
add_polygon(sketch16, [(-28.2, 19), (-28.2, -18.9), (-30.3, -17.6), (-30.3, 19)])  # lines 0-3
sketch16.addGeometry(Part.LineSegment(V(-28.2, -18.9, 0), V(-28.2, 19, 0)), True)  # axis
sketch16.addConstraint(Sketcher.Constraint("Vertical", 0))
sketch16.addConstraint(Sketcher.Constraint("Vertical", 2))
sketch16.addConstraint(Sketcher.Constraint("Horizontal", 3))
sketch16.addConstraint(Sketcher.Constraint("Vertical", 4))
sketch16.addConstraint(Sketcher.Constraint("Coincident", 4, 1, 0, 2))
sketch16.addConstraint(Sketcher.Constraint("Horizontal", 2, 2, 4, 2))
sketch16.addConstraint(Sketcher.Constraint("Angle", 1, Q("149 deg")))
sketch16.addConstraint(Sketcher.Constraint("DistanceX", 3, 1, 3, 2, Q("2.1 mm")))
sketch16.addConstraint(Sketcher.Constraint("DistanceY", 2, 1, 2, 2, Q("36.6 mm")))
sketch16.addConstraint(Sketcher.Constraint("DistanceY", -1, 1, 2, 2, Q("19 mm")))
sketch16.addConstraint(Sketcher.Constraint("DistanceX", 0, 2, -1, 1, Q("28.1917 mm")))
groove13 = body.newObject("PartDesign::Groove", "Groove012")
groove13.Profile = sketch16
groove13.ReferenceAxis = (sketch16, ["Axis0"])
groove13.Angle = 360

# Sketch on YZ plane
sketch17 = body.newObject("Sketcher::SketchObject", "Sketch016")
sketch17.AttachmentSupport = (doc.getObject("YZ_Plane"), [""])
sketch17.MapMode = "FlatFace"
sketch17.AttachmentOffset = App.Placement(V(0, 0, -65.5), App.Rotation())
add_polygon(sketch17, [(24.8, 19), (24.8, -18.9), (22.7, -17.6), (22.7, 19)])  # lines 0-3
sketch17.addGeometry(Part.LineSegment(V(24.8, -18.9, 0), V(24.8, 19, 0)), True)  # axis
sketch17.addConstraint(Sketcher.Constraint("Vertical", 0))
sketch17.addConstraint(Sketcher.Constraint("Vertical", 2))
sketch17.addConstraint(Sketcher.Constraint("Horizontal", 3))
sketch17.addConstraint(Sketcher.Constraint("Vertical", 4))
sketch17.addConstraint(Sketcher.Constraint("Coincident", 4, 1, 0, 2))
sketch17.addConstraint(Sketcher.Constraint("Horizontal", 2, 2, 4, 2))
sketch17.addConstraint(Sketcher.Constraint("Angle", 1, Q("149 deg")))
sketch17.addConstraint(Sketcher.Constraint("DistanceX", 3, 1, 3, 2, Q("2.1 mm")))
sketch17.addConstraint(Sketcher.Constraint("DistanceY", 2, 1, 2, 2, Q("36.6 mm")))
sketch17.addConstraint(Sketcher.Constraint("DistanceY", -1, 1, 2, 2, Q("19 mm")))
sketch17.addConstraint(Sketcher.Constraint("DistanceX", -1, 1, 0, 2, Q("24.8083 mm")))
groove14 = body.newObject("PartDesign::Groove", "Groove013")
groove14.Profile = sketch17
groove14.ReferenceAxis = (sketch17, ["Axis0"])
groove14.Angle = 360

# Sketch on YZ plane
sketch18 = body.newObject("Sketcher::SketchObject", "Sketch017")
sketch18.AttachmentSupport = (doc.getObject("YZ_Plane"), [""])
sketch18.MapMode = "FlatFace"
sketch18.AttachmentOffset = App.Placement(V(0, 0, -105.5), App.Rotation())
add_polygon(sketch18, [(24.8, 19), (24.8, -18.9), (22.7, -17.6), (22.7, 19)])  # lines 0-3
sketch18.addGeometry(Part.LineSegment(V(24.8, -18.9, 0), V(24.8, 19, 0)), True)  # axis
sketch18.addConstraint(Sketcher.Constraint("Vertical", 0))
sketch18.addConstraint(Sketcher.Constraint("Vertical", 2))
sketch18.addConstraint(Sketcher.Constraint("Horizontal", 3))
sketch18.addConstraint(Sketcher.Constraint("Vertical", 4))
sketch18.addConstraint(Sketcher.Constraint("Coincident", 4, 1, 0, 2))
sketch18.addConstraint(Sketcher.Constraint("Horizontal", 2, 2, 4, 2))
sketch18.addConstraint(Sketcher.Constraint("Angle", 1, Q("149 deg")))
sketch18.addConstraint(Sketcher.Constraint("DistanceX", 3, 1, 3, 2, Q("2.1 mm")))
sketch18.addConstraint(Sketcher.Constraint("DistanceY", 2, 1, 2, 2, Q("36.6 mm")))
sketch18.addConstraint(Sketcher.Constraint("DistanceY", -1, 1, 2, 2, Q("19 mm")))
sketch18.addConstraint(Sketcher.Constraint("DistanceX", -1, 1, 0, 2, Q("24.8083 mm")))
groove15 = body.newObject("PartDesign::Groove", "Groove014")
groove15.Profile = sketch18
groove15.ReferenceAxis = (sketch18, ["Axis0"])
groove15.Angle = 360

# Sketch on XY plane
sketch19 = body.newObject("Sketcher::SketchObject", "Sketch018")
sketch19.AttachmentSupport = (doc.getObject("XY_Plane"), [""])
sketch19.MapMode = "FlatFace"
add_polygon(sketch19, [(126, -159), (126, -318), (-126, -318), (-126, -159)])  # lines 0-3
sketch19.addConstraint(Sketcher.Constraint("Vertical", 0))
sketch19.addConstraint(Sketcher.Constraint("Horizontal", 1))
sketch19.addConstraint(Sketcher.Constraint("Vertical", 2))
sketch19.addConstraint(Sketcher.Constraint("Horizontal", 3))
sketch19.addConstraint(Sketcher.Constraint("DistanceX", 1, 2, 1, 1, Q("252 mm")))
sketch19.addConstraint(Sketcher.Constraint("DistanceX", -1, 1, 0, 2, Q("126 mm")))
sketch19.addConstraint(Sketcher.Constraint("DistanceY", 2, 2, -1, 1, Q("159.25 mm")))
sketch19.addConstraint(Sketcher.Constraint("DistanceY", 0, 2, 0, 1, Q("158.679932 mm")))
pocket2 = body.newObject("PartDesign::Pocket", "Pocket001")
pocket2.Profile = sketch19
pocket2.Length = 28
pocket2.Reversed = True

# Sketch on XY plane
sketch20 = body.newObject("Sketcher::SketchObject", "Sketch019")
sketch20.AttachmentSupport = (doc.getObject("XY_Plane"), [""])
sketch20.MapMode = "FlatFace"
sketch20.AttachmentOffset = App.Placement(V(0, 0, 16.5), App.Rotation())
add_polygon(sketch20, [(-30, -129), (-30, -159), (30, -159), (30, -129)])  # lines 0-3
sketch20.addConstraint(Sketcher.Constraint("Vertical", 0))
sketch20.addConstraint(Sketcher.Constraint("Horizontal", 1))
sketch20.addConstraint(Sketcher.Constraint("Vertical", 2))
sketch20.addConstraint(Sketcher.Constraint("Horizontal", 3))
sketch20.addConstraint(Sketcher.Constraint("DistanceX", 1, 1, 1, 2, Q("60 mm")))
sketch20.addConstraint(Sketcher.Constraint("DistanceY", 0, 2, 0, 1, Q("30 mm")))
sketch20.addConstraint(Sketcher.Constraint("DistanceX", 0, 2, -1, 1, Q("30 mm")))
sketch20.addConstraint(Sketcher.Constraint("DistanceY", 0, 2, -1, 1, Q("159.25 mm")))
pad2 = body.newObject("PartDesign::Pad", "Pad001")
pad2.Profile = sketch20
pad2.Length = 2.5

# Sketch on XY plane
sketch21 = body.newObject("Sketcher::SketchObject", "Sketch020")
sketch21.AttachmentSupport = (doc.getObject("XY_Plane"), [""])
sketch21.MapMode = "FlatFace"
sketch21.AttachmentOffset = App.Placement(V(0, 0, 16.5), App.Rotation())
sketch21.addGeometry(Part.Circle(V(-12, 86.3, 0), V(0, 0, 1), 2.8), False)
sketch21.addGeometry(Part.Circle(V(12, 86.3, 0), V(0, 0, 1), 2.8), False)
sketch21.addGeometry(Part.Circle(V(12, 126.3, 0), V(0, 0, 1), 2.8), False)
sketch21.addGeometry(Part.Circle(V(-12, 126.3, 0), V(0, 0, 1), 2.8), False)
sketch21.addConstraint(Sketcher.Constraint("Equal", 0, 1))
sketch21.addConstraint(Sketcher.Constraint("Equal", 1, 2))
sketch21.addConstraint(Sketcher.Constraint("Equal", 2, 3))
sketch21.addConstraint(Sketcher.Constraint("Symmetric", 0, 3, 1, 3, -2))
sketch21.addConstraint(Sketcher.Constraint("Symmetric", 2, 3, 3, 3, -2))
sketch21.addConstraint(Sketcher.Constraint("Vertical", 1, 3, 2, 3))
sketch21.addConstraint(Sketcher.Constraint("Diameter", 0, Q("5.5 mm")))
sketch21.addConstraint(Sketcher.Constraint("DistanceX", 0, 3, -1, 1, Q("12 mm")))
sketch21.addConstraint(Sketcher.Constraint("DistanceY", 1, 3, 2, 3, Q("40 mm")))
sketch21.addConstraint(Sketcher.Constraint("DistanceY", -1, 1, 0, 3, Q("86.3083 mm")))
doc.recompute()
hole2 = body.newObject("PartDesign::Hole", "Hole001")
hole2.Profile = sketch21
hole2.ThreadType = "None"
hole2.Diameter = 5.5
hole2.DepthType = "ThroughAll"

# Sketch on XZ plane
sketch22 = body.newObject("Sketcher::SketchObject", "Sketch021")
sketch22.AttachmentSupport = (doc.getObject("XZ_Plane"), [""])
sketch22.MapMode = "FlatFace"
sketch22.AttachmentOffset = App.Placement(V(0, 0, 159.25), App.Rotation())
sketch22.addGeometry(Part.Circle(V(-20, 7.1, 0), V(0, 0, 1), 2.5), False)
sketch22.addGeometry(Part.Circle(V(20, 7.1, 0), V(0, 0, 1), 2.5), False)
sketch22.addConstraint(Sketcher.Constraint("Equal", 0, 1))
sketch22.addConstraint(Sketcher.Constraint("Symmetric", 0, 3, 1, 3, -2))
sketch22.addConstraint(Sketcher.Constraint("Diameter", 0, Q("5 mm")))
sketch22.addConstraint(Sketcher.Constraint("DistanceX", 0, 3, -1, 1, Q("20 mm")))
sketch22.addConstraint(Sketcher.Constraint("DistanceY", -1, 1, 0, 3, Q("7.125 mm")))
doc.recompute()
hole3 = body.newObject("PartDesign::Hole", "Hole002")
hole3.Profile = sketch22
hole3.ThreadType = "None"
hole3.Diameter = 5
hole3.DepthType = "Dimension"
hole3.Depth = 30
hole3.DrillPoint = "Angled"
hole3.DrillPointAngle = 118

# Sketch on XY plane
sketch23 = body.newObject("Sketcher::SketchObject", "Sketch022")
sketch23.AttachmentSupport = (doc.getObject("XY_Plane"), [""])
sketch23.MapMode = "FlatFace"
sketch23.addGeometry(Part.Circle(V(10, -144.2, 0), V(0, 0, 1), 2.5), False)
sketch23.addGeometry(Part.Circle(V(-10, -144.2, 0), V(0, 0, 1), 2.5), False)
sketch23.addConstraint(Sketcher.Constraint("Equal", 0, 1))
sketch23.addConstraint(Sketcher.Constraint("Symmetric", 0, 3, 1, 3, -2))
sketch23.addConstraint(Sketcher.Constraint("Diameter", 0, Q("5 mm")))
sketch23.addConstraint(Sketcher.Constraint("DistanceX", -1, 1, 0, 3, Q("10 mm")))
sketch23.addConstraint(Sketcher.Constraint("DistanceY", 0, 3, -1, 1, Q("144.25 mm")))
doc.recompute()
hole4 = body.newObject("PartDesign::Hole", "Hole003")
hole4.Profile = sketch23
hole4.ThreadType = "None"
hole4.Diameter = 5
hole4.DepthType = "ThroughAll"
hole4.Reversed = True

# Sketch on XY plane
sketch24 = body.newObject("Sketcher::SketchObject", "Sketch023")
sketch24.AttachmentSupport = (doc.getObject("XY_Plane"), [""])
sketch24.MapMode = "FlatFace"
sketch24.AttachmentOffset = App.Placement(V(0, 0, 19), App.Rotation())
add_polygon(sketch24, [(92, 158), (92, 38), (126, 38), (126, 158)])  # lines 0-3
add_polygon(sketch24, [(-126, 158), (-126, 38), (-92, 38), (-92, 158)])  # lines 4-7
sketch24.addConstraint(Sketcher.Constraint("Vertical", 0))
sketch24.addConstraint(Sketcher.Constraint("Horizontal", 1))
sketch24.addConstraint(Sketcher.Constraint("Vertical", 2))
sketch24.addConstraint(Sketcher.Constraint("Horizontal", 3))
sketch24.addConstraint(Sketcher.Constraint("Vertical", 4))
sketch24.addConstraint(Sketcher.Constraint("Horizontal", 5))
sketch24.addConstraint(Sketcher.Constraint("Vertical", 6))
sketch24.addConstraint(Sketcher.Constraint("Horizontal", 7))
sketch24.addConstraint(Sketcher.Constraint("Symmetric", 1, 2, 4, 2, -2))
sketch24.addConstraint(Sketcher.Constraint("Symmetric", 3, 2, 6, 2, -2))
sketch24.addConstraint(Sketcher.Constraint("DistanceX", 1, 1, 1, 2, Q("33.5 mm")))
sketch24.addConstraint(Sketcher.Constraint("DistanceX", -1, 1, 1, 2, Q("126 mm")))
sketch24.addConstraint(Sketcher.Constraint("DistanceY", 0, 2, 0, 1, Q("120.140012 mm")))
sketch24.addConstraint(Sketcher.Constraint("DistanceY", -1, 1, 0, 2, Q("38.08202 mm")))
pocket3 = body.newObject("PartDesign::Pocket", "Pocket002")
pocket3.Profile = sketch24
pocket3.Length = 76.991082
doc.recompute()

fillet = body.newObject("PartDesign::Fillet", "Fillet")
fillet.Base = (pocket3, edges_at(pocket3, [
    (126, 158.222, 9.5),
    (126, 38.082, 9.5),
    (-126, 158.222, 9.5),
    (-126, 38.082, 9.5),
]))
fillet.Radius = 30
doc.recompute()

fillet2 = body.newObject("PartDesign::Fillet", "Fillet001")
fillet2.Base = (fillet, edges_at(fillet, [
    (-126, -159.25, 9.5),
    (126, -159.25, 9.5),
    (-126, 250, 9.5),
    (126, 250, 9.5),
]))
fillet2.Radius = 30
doc.recompute()

fillet3 = body.newObject("PartDesign::Fillet", "Fillet002")
fillet3.Base = (fillet2, edges_at(fillet2, [
    (92.5, 158.222, 9.5),
    (92.5, 38.082, 9.5),
    (-92.5, 38.082, 9.5),
    (-92.5, 158.222, 9.5),
]))
fillet3.Radius = 6

# Sketch on XY plane
sketch25 = body.newObject("Sketcher::SketchObject", "Sketch024")
sketch25.AttachmentSupport = (doc.getObject("XY_Plane"), [""])
sketch25.MapMode = "FlatFace"
add_polygon(sketch25, [(32, 134), (32, 78), (-32, 78), (-32, 134)])  # lines 0-3
sketch25.addConstraint(Sketcher.Constraint("Vertical", 0))
sketch25.addConstraint(Sketcher.Constraint("Horizontal", 1))
sketch25.addConstraint(Sketcher.Constraint("Vertical", 2))
sketch25.addConstraint(Sketcher.Constraint("Horizontal", 3))
sketch25.addConstraint(Sketcher.Constraint("DistanceX", 1, 2, 1, 1, Q("64 mm")))
sketch25.addConstraint(Sketcher.Constraint("DistanceY", 0, 2, 0, 1, Q("56 mm")))
sketch25.addConstraint(Sketcher.Constraint("DistanceX", -1, 1, 0, 2, Q("32 mm")))
sketch25.addConstraint(Sketcher.Constraint("DistanceY", -1, 1, 0, 2, Q("78.3083 mm")))
pocket4 = body.newObject("PartDesign::Pocket", "Pocket003")
pocket4.Profile = sketch25
pocket4.Length = 2
pocket4.Reversed = True

doc.recompute()
